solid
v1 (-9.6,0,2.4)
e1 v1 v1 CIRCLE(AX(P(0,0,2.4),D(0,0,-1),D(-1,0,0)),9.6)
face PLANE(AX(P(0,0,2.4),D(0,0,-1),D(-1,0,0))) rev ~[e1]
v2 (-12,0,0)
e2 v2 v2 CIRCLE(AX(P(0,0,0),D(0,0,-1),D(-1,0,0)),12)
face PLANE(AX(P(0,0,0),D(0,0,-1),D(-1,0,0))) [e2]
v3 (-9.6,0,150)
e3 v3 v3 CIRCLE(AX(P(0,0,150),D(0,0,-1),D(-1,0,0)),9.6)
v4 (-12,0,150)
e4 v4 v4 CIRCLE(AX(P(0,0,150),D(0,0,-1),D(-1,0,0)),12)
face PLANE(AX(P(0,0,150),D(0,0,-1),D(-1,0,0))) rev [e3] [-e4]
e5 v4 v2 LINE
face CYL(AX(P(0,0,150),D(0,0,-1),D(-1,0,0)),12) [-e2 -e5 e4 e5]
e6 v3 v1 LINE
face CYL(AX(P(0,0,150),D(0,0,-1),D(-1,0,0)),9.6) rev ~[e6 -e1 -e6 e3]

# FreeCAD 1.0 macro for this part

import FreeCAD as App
import Part
import Sketcher
Q = App.Units.Quantity


def faces_at(feature, points):
    """Names of the faces that lie closest to the given points."""
    faces = feature.Shape.Faces
    near = lambda p: min(range(len(faces)), key=lambda i: faces[i].distToShape(Part.Vertex(*p))[0])
    return sorted({f"Face{near(p) + 1}" for p in points})

doc = App.newDocument("Part")
body = doc.addObject("PartDesign::Body", "Body")

sketch1 = doc.addObject("Sketcher::SketchObject", "Sketch")
body.addObject(sketch1)
sketch1.AttachmentSupport = (doc.XZ_Plane, [""])
sketch1.MapMode = "FlatFace"
sketch1.addGeometry(Part.LineSegment(App.Vector(0, 0, 0), App.Vector(0, 150, 0)), False)
sketch1.addGeometry(Part.LineSegment(App.Vector(0, 150, 0), App.Vector(-12, 150, 0)), False)
sketch1.addGeometry(Part.LineSegment(App.Vector(-12, 150, 0), App.Vector(-12, 0, 0)), False)
sketch1.addGeometry(Part.LineSegment(App.Vector(-12, 0, 0), App.Vector(0, 0, 0)), False)
sketch1.addConstraint(Sketcher.Constraint("Coincident", 0, 2, 1, 1))
sketch1.addConstraint(Sketcher.Constraint("Coincident", 1, 2, 2, 1))
sketch1.addConstraint(Sketcher.Constraint("Coincident", 2, 2, 3, 1))
sketch1.addConstraint(Sketcher.Constraint("Coincident", 3, 2, 0, 1))
sketch1.addConstraint(Sketcher.Constraint("Vertical", 0))
sketch1.addConstraint(Sketcher.Constraint("Horizontal", 1))
sketch1.addConstraint(Sketcher.Constraint("Vertical", 2))
sketch1.addConstraint(Sketcher.Constraint("Horizontal", 3))
sketch1.addConstraint(Sketcher.Constraint("Coincident", 3, 2, -1, 1))
sketch1.addConstraint(Sketcher.Constraint("DistanceX", 1, 2, 1, 1, Q("12 mm")))
sketch1.addConstraint(Sketcher.Constraint("DistanceY", 0, 1, 0, 2, Q("150 mm")))
revolution = doc.addObject("PartDesign::Revolution", "Revolution")
body.addObject(revolution)
revolution.Profile = sketch1
revolution.ReferenceAxis = (sketch1, ["V_Axis"])
revolution.Angle = 360
doc.recompute()

thickness = doc.addObject("PartDesign::Thickness", "Thickness")
body.addObject(thickness)
thickness.Base = (revolution, faces_at(revolution, [(0, 0, 150)]))
thickness.Value = 2.4
thickness.Reversed = True
thickness.Join = "Arc"

doc.recompute()
